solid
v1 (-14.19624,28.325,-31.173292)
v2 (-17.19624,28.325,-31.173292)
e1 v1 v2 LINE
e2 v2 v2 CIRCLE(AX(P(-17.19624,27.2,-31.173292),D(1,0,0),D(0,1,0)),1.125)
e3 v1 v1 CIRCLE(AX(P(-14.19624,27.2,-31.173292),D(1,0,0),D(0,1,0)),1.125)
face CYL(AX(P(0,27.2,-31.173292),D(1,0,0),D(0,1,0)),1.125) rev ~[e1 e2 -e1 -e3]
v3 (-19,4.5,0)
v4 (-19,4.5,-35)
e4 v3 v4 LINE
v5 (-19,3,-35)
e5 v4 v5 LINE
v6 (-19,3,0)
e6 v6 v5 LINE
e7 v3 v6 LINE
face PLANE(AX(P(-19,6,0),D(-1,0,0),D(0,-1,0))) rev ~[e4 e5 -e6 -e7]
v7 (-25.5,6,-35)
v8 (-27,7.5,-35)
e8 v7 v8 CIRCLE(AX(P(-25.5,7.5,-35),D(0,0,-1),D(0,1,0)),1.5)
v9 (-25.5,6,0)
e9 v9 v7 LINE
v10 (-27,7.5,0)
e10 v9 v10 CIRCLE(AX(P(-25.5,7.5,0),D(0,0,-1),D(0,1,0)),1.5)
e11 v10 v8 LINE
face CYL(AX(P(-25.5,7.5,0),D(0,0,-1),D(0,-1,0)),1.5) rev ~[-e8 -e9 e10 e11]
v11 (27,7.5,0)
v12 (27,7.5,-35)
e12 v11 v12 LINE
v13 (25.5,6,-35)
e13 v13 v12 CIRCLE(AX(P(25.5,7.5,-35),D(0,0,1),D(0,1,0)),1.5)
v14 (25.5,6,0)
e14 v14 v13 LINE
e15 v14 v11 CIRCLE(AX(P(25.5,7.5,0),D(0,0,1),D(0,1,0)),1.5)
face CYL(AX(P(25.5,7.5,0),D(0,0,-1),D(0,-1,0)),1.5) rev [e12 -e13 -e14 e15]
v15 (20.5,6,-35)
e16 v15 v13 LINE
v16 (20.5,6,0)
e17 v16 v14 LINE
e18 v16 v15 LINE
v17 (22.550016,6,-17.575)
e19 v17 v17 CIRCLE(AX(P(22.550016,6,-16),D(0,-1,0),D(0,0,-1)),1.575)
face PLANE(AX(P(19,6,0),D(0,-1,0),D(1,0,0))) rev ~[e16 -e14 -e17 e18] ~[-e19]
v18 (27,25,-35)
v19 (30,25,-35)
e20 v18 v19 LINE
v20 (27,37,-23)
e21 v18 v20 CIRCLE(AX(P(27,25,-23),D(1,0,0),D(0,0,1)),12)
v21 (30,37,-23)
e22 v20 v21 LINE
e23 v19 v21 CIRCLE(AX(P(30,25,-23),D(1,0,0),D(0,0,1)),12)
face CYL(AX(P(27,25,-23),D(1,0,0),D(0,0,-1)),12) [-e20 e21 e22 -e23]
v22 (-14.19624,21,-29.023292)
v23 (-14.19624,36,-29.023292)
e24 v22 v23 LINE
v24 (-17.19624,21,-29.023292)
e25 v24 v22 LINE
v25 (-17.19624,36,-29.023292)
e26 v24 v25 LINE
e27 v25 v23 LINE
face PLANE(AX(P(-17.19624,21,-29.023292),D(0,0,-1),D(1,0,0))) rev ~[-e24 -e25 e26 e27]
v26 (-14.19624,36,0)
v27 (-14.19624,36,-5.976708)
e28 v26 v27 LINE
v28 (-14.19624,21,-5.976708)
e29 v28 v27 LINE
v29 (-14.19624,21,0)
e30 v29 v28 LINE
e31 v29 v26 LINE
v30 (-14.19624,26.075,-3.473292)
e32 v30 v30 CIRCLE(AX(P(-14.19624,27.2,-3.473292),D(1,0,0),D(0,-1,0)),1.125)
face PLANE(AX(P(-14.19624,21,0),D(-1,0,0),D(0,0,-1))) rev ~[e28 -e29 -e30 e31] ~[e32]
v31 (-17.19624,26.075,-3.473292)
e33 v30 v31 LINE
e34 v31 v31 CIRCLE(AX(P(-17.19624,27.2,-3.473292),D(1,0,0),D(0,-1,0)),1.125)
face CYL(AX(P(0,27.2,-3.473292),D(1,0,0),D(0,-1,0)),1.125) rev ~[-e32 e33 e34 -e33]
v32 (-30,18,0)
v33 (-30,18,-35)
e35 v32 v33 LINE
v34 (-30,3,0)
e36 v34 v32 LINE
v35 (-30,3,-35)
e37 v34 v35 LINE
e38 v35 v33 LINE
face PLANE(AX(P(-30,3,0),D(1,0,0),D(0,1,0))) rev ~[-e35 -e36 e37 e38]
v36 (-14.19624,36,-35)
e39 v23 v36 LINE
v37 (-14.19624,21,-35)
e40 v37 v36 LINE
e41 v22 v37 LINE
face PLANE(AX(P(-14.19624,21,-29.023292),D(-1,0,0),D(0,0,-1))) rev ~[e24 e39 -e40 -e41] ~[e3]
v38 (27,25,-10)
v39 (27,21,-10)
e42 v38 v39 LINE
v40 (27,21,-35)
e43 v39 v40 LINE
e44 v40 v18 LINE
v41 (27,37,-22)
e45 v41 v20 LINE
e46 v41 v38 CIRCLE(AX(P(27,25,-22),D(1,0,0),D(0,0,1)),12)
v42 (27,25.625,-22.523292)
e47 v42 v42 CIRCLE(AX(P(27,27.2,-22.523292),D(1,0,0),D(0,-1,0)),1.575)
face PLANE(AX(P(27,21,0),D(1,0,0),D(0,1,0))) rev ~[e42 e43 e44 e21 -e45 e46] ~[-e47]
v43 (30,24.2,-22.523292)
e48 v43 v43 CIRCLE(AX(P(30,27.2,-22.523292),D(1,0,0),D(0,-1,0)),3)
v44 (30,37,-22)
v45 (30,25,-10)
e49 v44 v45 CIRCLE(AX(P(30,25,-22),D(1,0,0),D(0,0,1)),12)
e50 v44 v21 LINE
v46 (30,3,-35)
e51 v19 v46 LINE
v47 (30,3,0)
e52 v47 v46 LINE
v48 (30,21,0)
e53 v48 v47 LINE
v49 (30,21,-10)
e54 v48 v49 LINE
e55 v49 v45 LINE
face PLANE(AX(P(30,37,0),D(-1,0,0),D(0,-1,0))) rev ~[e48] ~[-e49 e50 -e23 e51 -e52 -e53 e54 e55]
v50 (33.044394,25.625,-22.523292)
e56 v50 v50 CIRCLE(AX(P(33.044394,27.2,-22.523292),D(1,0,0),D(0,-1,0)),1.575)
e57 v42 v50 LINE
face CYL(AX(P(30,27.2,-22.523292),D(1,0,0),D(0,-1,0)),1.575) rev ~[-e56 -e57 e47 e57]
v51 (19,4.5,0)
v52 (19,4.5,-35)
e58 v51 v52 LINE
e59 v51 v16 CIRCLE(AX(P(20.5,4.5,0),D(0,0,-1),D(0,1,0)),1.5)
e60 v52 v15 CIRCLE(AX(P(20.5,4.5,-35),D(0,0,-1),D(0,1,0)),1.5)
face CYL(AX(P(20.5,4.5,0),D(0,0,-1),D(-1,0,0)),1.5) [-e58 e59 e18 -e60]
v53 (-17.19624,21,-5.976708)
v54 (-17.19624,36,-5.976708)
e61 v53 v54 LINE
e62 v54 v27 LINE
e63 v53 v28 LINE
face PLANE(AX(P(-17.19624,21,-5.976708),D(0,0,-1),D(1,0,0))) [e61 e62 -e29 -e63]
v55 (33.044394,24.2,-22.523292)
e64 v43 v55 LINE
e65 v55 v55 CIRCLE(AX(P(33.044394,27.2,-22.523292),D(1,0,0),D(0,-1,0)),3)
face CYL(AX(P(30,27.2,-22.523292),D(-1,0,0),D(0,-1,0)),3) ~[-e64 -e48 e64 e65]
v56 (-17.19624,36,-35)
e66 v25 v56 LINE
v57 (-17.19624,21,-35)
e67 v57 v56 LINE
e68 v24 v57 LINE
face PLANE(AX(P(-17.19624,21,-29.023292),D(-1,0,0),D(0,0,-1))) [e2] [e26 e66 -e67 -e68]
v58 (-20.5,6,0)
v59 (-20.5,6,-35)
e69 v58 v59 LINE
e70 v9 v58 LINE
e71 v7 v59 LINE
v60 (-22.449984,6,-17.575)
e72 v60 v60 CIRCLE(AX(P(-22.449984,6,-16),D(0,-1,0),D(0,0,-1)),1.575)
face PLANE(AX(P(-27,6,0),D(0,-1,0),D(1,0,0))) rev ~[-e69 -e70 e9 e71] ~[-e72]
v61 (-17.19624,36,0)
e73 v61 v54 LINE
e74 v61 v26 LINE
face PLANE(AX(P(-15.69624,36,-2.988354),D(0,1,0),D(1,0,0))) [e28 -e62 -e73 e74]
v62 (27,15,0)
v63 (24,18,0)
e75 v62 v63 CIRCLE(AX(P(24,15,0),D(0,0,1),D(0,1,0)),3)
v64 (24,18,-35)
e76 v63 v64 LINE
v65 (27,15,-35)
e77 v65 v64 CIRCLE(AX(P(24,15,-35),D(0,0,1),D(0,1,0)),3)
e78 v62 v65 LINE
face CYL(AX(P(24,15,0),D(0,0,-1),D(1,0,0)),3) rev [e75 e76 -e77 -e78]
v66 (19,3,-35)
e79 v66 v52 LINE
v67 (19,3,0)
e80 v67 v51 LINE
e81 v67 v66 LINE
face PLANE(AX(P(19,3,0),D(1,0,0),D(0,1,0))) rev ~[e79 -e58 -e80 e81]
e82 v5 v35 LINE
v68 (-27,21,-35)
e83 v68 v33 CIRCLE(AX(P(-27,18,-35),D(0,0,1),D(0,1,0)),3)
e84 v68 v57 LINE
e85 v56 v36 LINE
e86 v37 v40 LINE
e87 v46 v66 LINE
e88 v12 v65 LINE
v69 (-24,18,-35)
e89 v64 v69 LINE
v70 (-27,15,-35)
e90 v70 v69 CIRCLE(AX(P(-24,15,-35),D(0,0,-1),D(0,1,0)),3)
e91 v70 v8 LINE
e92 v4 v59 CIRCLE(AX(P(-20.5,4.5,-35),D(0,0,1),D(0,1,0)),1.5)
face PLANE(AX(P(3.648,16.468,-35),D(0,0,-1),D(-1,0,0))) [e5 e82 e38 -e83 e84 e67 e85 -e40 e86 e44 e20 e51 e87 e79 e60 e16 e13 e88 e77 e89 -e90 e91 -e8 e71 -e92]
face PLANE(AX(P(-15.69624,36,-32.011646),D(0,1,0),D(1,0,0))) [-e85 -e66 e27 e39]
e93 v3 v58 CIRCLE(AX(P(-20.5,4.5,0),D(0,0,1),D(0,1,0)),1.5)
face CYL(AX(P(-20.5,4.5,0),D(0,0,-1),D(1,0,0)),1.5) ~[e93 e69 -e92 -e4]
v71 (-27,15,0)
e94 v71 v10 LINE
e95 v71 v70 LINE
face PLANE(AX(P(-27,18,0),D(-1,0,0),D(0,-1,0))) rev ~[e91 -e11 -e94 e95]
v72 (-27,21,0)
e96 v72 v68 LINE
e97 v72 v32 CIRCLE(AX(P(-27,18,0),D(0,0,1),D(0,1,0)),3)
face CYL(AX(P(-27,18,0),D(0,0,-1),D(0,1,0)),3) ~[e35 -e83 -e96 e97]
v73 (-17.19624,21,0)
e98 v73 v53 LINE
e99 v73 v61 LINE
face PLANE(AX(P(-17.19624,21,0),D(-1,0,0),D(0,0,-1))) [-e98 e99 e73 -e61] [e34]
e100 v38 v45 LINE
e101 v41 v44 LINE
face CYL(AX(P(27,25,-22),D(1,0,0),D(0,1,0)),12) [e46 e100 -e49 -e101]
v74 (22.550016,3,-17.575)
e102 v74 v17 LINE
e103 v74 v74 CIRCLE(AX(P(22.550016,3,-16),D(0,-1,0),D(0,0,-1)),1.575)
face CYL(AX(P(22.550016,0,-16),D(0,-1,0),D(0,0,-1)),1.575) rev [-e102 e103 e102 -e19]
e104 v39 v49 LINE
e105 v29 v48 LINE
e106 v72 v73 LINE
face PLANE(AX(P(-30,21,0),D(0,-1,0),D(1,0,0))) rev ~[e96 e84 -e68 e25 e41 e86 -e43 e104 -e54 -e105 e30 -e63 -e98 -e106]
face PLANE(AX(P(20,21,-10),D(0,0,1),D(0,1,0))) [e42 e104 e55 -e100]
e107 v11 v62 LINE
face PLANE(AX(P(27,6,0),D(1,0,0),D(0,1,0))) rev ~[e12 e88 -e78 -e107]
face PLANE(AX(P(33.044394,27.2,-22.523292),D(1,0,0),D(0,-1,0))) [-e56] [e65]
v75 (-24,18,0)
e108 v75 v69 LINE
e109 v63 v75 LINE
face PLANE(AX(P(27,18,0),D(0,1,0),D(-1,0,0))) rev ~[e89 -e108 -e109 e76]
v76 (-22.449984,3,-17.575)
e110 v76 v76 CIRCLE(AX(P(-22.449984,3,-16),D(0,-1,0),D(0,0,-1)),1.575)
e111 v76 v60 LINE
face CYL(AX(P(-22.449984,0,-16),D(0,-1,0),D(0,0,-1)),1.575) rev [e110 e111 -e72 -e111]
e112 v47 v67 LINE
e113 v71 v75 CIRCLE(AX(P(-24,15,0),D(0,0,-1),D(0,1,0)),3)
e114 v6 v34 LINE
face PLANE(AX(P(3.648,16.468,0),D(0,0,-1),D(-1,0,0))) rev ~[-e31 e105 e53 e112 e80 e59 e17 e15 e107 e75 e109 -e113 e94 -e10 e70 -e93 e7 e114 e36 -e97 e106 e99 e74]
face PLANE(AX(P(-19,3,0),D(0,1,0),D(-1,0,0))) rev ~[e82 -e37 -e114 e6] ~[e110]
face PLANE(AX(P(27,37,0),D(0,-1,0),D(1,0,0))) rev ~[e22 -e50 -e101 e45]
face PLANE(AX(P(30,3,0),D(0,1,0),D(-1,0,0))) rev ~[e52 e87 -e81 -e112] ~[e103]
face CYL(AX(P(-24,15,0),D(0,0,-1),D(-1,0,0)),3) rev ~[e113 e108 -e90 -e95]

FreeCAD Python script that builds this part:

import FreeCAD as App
import Part
import Sketcher

V = App.Vector


def edges_at(feature, points):
    """Names of the edges that pass closest to the given points."""
    edges = feature.Shape.Edges
    near = lambda p: min(range(len(edges)), key=lambda i: edges[i].distToShape(Part.Vertex(*p))[0])
    return sorted({f"Edge{near(p) + 1}" for p in points})


def add_polygon(sketch, points):
    """Adds a closed chain of lines whose ends are joined by coincident constraints."""
    first, n = sketch.GeometryCount, len(points)
    for a, b in zip(points, points[1:] + points[:1]):
        sketch.addGeometry(Part.LineSegment(App.Vector(*a, 0), App.Vector(*b, 0)), False)
    for i in range(n):
        sketch.addConstraint(Sketcher.Constraint("Coincident", first + i, 2, first + (i + 1) % n, 1))

doc = App.newDocument("Part")
body = doc.addObject("PartDesign::Body", "Body")

# Sketch on XY plane
sketch1 = doc.addObject("Sketcher::SketchObject", "Sketch")
body.addObject(sketch1)
sketch1.AttachmentSupport = (doc.XY_Plane, [""])
sketch1.MapMode = "FlatFace"
add_polygon(sketch1, [(27, 37), (27, 21), (-30, 21), (-30, 3), (-19, 3), (-19, 6), (-27, 6), (-27, 18), (27, 18), (27, 6), (19, 6), (19, 3), (30, 3), (30, 37)])  # lines 0-13
sketch1.addConstraint([
    Sketcher.Constraint("Vertical", 0),
    Sketcher.Constraint("Horizontal", 1),
    Sketcher.Constraint("Vertical", 2),
    Sketcher.Constraint("Horizontal", 3),
    Sketcher.Constraint("Vertical", 4),
    Sketcher.Constraint("Horizontal", 5),
    Sketcher.Constraint("Vertical", 6),
    Sketcher.Constraint("Horizontal", 7),
    Sketcher.Constraint("Vertical", 8),
    Sketcher.Constraint("Horizontal", 9),
    Sketcher.Constraint("Vertical", 10),
    Sketcher.Constraint("Horizontal", 11),
    Sketcher.Constraint("Vertical", 12),
    Sketcher.Constraint("Horizontal", 13),
    Sketcher.Constraint("Symmetric", 5, 2, 8, 2, -2),
    Sketcher.Constraint("Symmetric", 3, 2, 10, 2, -2),
    Sketcher.Constraint("Vertical", 0, 2, 7, 2),
    Sketcher.Constraint("Equal", 3, 11),
    Sketcher.Constraint("Equal", 13, 4),
    Sketcher.Constraint("DistanceX", 1, 2, 1, 1, 57.0),
    Sketcher.Constraint("DistanceX", 3, 1, 3, 2, 11.0),
    Sketcher.Constraint("DistanceX", 5, 2, 5, 1, 8.0),
    Sketcher.Constraint("DistanceY", 0, 2, 0, 1, 16.0),
    Sketcher.Constraint("DistanceY", 2, 2, 2, 1, 18.0),
    Sketcher.Constraint("DistanceY", 6, 1, 6, 2, 12.0),
    Sketcher.Constraint("DistanceY", -1, 1, 0, 2, 21.0),
])
pad1 = doc.addObject("PartDesign::Pad", "Pad")
body.addObject(pad1)
pad1.Profile = sketch1
pad1.Length = 35
pad1.Reversed = True

# Sketch on XZ plane
sketch2 = doc.addObject("Sketcher::SketchObject", "Sketch001")
body.addObject(sketch2)
sketch2.AttachmentSupport = (doc.XZ_Plane, [""])
sketch2.MapMode = "FlatFace"
sketch2.addGeometry([
    Part.Circle(V(-22.4, -16, 0), V(0, 0, 1), 1.6),
    Part.Circle(V(22.6, -16, 0), V(0, 0, 1), 1.6),
], False)
sketch2.addConstraint([
    Sketcher.Constraint("Equal", 0, 1),
    Sketcher.Constraint("Horizontal", 0, 3, 1, 3),
    Sketcher.Constraint("Diameter", 0, 3.15),
    Sketcher.Constraint("DistanceY", 0, 3, -1, 1, 16.0),
    Sketcher.Constraint("DistanceX", 0, 3, 1, 3, 45.0),
    Sketcher.Constraint("DistanceX", 0, 3, -1, 1, 22.449984),
])
pocket1 = doc.addObject("PartDesign::Pocket", "Pocket")
body.addObject(pocket1)
pocket1.Profile = sketch2
pocket1.Length = 10

# Sketch on YZ plane
sketch3 = doc.addObject("Sketcher::SketchObject", "Sketch002")
body.addObject(sketch3)
sketch3.AttachmentSupport = (doc.YZ_Plane, [""])
sketch3.MapMode = "FlatFace"
sketch3.AttachmentOffset = App.Placement(V(0, 0, 30), App.Rotation())
add_polygon(sketch3, [(37, 0), (21, 0), (21, -10), (37, -10)])  # lines 0-3
sketch3.addConstraint([
    Sketcher.Constraint("Horizontal", 0),
    Sketcher.Constraint("Vertical", 1),
    Sketcher.Constraint("Horizontal", 2),
    Sketcher.Constraint("Vertical", 3),
    Sketcher.Constraint("PointOnObject", 0, 2, -1),
    Sketcher.Constraint("DistanceX", 0, 2, 0, 1, 16.0),
    Sketcher.Constraint("DistanceY", 1, 2, 1, 1, 10.0),
    Sketcher.Constraint("DistanceX", -1, 1, 0, 2, 21.0),
])
pocket2 = doc.addObject("PartDesign::Pocket", "Pocket001")
body.addObject(pocket2)
pocket2.Profile = sketch3
pocket2.Type = "ThroughAll"
pocket2.Midplane = True
doc.recompute()

fillet = doc.addObject("PartDesign::Fillet", "Fillet")
body.addObject(fillet)
fillet.Base = (pocket2, edges_at(pocket2, [(28.5, 37, -10), (28.5, 37, -35)]))
fillet.Radius = 12
doc.recompute()

fillet2 = doc.addObject("PartDesign::Fillet", "Fillet001")
body.addObject(fillet2)
fillet2.Base = (fillet, edges_at(fillet, [(27, 18, -17.5), (-27, 18, -17.5), (-30, 21, -17.5)]))
fillet2.Radius = 3
doc.recompute()

fillet3 = doc.addObject("PartDesign::Fillet", "Fillet002")
body.addObject(fillet3)
fillet3.Base = (fillet2, edges_at(fillet2, [
    (19, 6, -17.5),
    (27, 6, -17.5),
    (-27, 6, -17.5),
    (-19, 6, -17.5),
]))
fillet3.Radius = 1.5

# Sketch on XZ plane
sketch4 = doc.addObject("Sketcher::SketchObject", "Sketch003")
body.addObject(sketch4)
sketch4.AttachmentSupport = (doc.XZ_Plane, [""])
sketch4.MapMode = "FlatFace"
sketch4.AttachmentOffset = App.Placement(V(0, 0, -21), App.Rotation())
add_polygon(sketch4, [(-17.2, -35), (-17.2, -29), (-14.2, -29), (-14.2, -35)])  # lines 0-3
add_polygon(sketch4, [(-17.2, -6), (-17.2, 0), (-14.2, 0), (-14.2, -6)])  # lines 4-7
sketch4.addConstraint([
    Sketcher.Constraint("Vertical", 0),
    Sketcher.Constraint("Horizontal", 1),
    Sketcher.Constraint("Vertical", 2),
    Sketcher.Constraint("Horizontal", 3),
    Sketcher.Constraint("Vertical", 4),
    Sketcher.Constraint("Horizontal", 5),
    Sketcher.Constraint("Vertical", 6),
    Sketcher.Constraint("Horizontal", 7),
    Sketcher.Constraint("PointOnObject", 4, 2, -1),
    Sketcher.Constraint("Vertical", 3, 2, 4, 2),
    Sketcher.Constraint("Vertical", 2, 2, 5, 2),
    Sketcher.Constraint("Equal", 2, 4),
    Sketcher.Constraint("DistanceX", 1, 1, 1, 2, 3.0),
    Sketcher.Constraint("DistanceY", 2, 2, -1, 1, 35.0),
    Sketcher.Constraint("DistanceY", 0, 1, 0, 2, 5.976708),
    Sketcher.Constraint("DistanceX", 0, 2, -1, 1, 17.19624),
])
pad2 = doc.addObject("PartDesign::Pad", "Pad001")
body.addObject(pad2)
pad2.Profile = sketch4
pad2.Length = 15
pad2.Reversed = True

# Sketch on YZ plane
sketch5 = doc.addObject("Sketcher::SketchObject", "Sketch004")
body.addObject(sketch5)
sketch5.AttachmentSupport = (doc.YZ_Plane, [""])
sketch5.MapMode = "FlatFace"
sketch5.addGeometry([
    Part.Circle(V(27.2, -3.5, 0), V(0, 0, 1), 1.1),
    Part.Circle(V(27.2, -31.2, 0), V(0, 0, 1), 1.1),
], False)
sketch5.addConstraint([
    Sketcher.Constraint("Equal", 0, 1),
    Sketcher.Constraint("Vertical", 0, 3, 1, 3),
    Sketcher.Constraint("Diameter", 0, 2.25),
    Sketcher.Constraint("DistanceX", -1, 1, 0, 3, 27.2),
    Sketcher.Constraint("DistanceY", 1, 3, 0, 3, 27.7),
    Sketcher.Constraint("DistanceY", 0, 3, -1, 1, 3.473292),
])
pocket3 = doc.addObject("PartDesign::Pocket", "Pocket002")
body.addObject(pocket3)
pocket3.Profile = sketch5
pocket3.Length = 25

# Sketch on YZ plane
sketch6 = doc.addObject("Sketcher::SketchObject", "Sketch005")
body.addObject(sketch6)
sketch6.AttachmentSupport = (doc.YZ_Plane, [""])
sketch6.MapMode = "FlatFace"
sketch6.AttachmentOffset = App.Placement(V(0, 0, 30), App.Rotation())
sketch6.addGeometry(Part.Circle(V(27.2, -22.5, 0), V(0, 0, 1), 3), False)
sketch6.addConstraint([
    Sketcher.Constraint("Diameter", 0, 6.0),
    Sketcher.Constraint("DistanceX", -1, 1, 0, 3, 27.2),
    Sketcher.Constraint("DistanceY", 0, 3, -1, 1, 22.523292),
])
pad3 = doc.addObject("PartDesign::Pad", "Pad002")
body.addObject(pad3)
pad3.Profile = sketch6
pad3.Length = 3.044394

# Sketch on YZ plane
sketch7 = doc.addObject("Sketcher::SketchObject", "Sketch006")
body.addObject(sketch7)
sketch7.AttachmentSupport = (doc.YZ_Plane, [""])
sketch7.MapMode = "FlatFace"
sketch7.AttachmentOffset = App.Placement(V(0, 0, 30), App.Rotation())
sketch7.addGeometry(Part.Circle(V(27.2, -22.5, 0), V(0, 0, 1), 1.6), False)
sketch7.addConstraint([
    Sketcher.Constraint("Diameter", 0, 3.15),
    Sketcher.Constraint("DistanceX", -1, 1, 0, 3, 27.2),
    Sketcher.Constraint("DistanceY", 0, 3, -1, 1, 22.523292),
])
pocket4 = doc.addObject("PartDesign::Pocket", "Pocket003")
body.addObject(pocket4)
pocket4.Profile = sketch7
pocket4.Length = 15
pocket4.Midplane = True

doc.recompute()
